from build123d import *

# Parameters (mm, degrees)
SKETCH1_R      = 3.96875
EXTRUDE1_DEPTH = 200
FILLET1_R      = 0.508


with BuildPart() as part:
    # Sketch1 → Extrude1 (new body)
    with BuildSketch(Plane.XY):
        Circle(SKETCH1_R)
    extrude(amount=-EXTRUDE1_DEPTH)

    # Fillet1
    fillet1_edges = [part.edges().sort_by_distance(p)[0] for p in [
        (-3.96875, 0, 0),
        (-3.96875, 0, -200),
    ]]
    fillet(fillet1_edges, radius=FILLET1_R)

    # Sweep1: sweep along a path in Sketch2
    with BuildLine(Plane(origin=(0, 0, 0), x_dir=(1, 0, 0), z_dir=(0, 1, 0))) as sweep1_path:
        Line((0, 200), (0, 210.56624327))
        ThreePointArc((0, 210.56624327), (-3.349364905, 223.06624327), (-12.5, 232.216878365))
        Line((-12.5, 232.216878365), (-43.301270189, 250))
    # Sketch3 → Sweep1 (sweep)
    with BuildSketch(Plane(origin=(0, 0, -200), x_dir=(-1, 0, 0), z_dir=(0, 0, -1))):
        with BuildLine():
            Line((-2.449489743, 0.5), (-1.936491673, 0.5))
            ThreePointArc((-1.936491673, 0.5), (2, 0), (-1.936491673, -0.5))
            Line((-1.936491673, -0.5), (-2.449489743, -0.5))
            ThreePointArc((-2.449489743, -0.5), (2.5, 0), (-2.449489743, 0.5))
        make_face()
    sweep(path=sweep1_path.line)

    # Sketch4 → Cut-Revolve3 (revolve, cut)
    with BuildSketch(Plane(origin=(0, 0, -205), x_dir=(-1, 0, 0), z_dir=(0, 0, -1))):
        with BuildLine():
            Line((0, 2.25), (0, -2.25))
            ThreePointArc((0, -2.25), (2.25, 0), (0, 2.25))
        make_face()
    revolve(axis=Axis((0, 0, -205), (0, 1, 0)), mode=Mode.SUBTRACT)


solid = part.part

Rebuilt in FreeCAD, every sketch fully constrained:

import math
import FreeCAD as App
import Part
import Sketcher
from FreeCAD import Vector
Q = App.Units.Quantity


def edges_at(feature, points):
    """Names of the edges that pass closest to the given points."""
    edges = feature.Shape.Edges
    near = lambda p: min(range(len(edges)), key=lambda i: edges[i].distToShape(Part.Vertex(*p))[0])
    return sorted({f"Edge{near(p) + 1}" for p in points})

doc = App.newDocument("Part")
body = doc.addObject("PartDesign::Body", "Body")

sketch1 = body.newObject("Sketcher::SketchObject", "Sketch")
sketch1.AttachmentSupport = (doc.getObject("XY_Plane"), [""])
sketch1.MapMode = "FlatFace"
sketch1.addGeometry(Part.Circle(Vector(0, 0, 0), Vector(0, 0, 1), 4), False)
sketch1.addConstraint([
    Sketcher.Constraint("Coincident", 0, 3, -1, 1),
    Sketcher.Constraint("Diameter", 0, 7.9375),
])
pad1 = body.newObject("PartDesign::Pad", "Pad")
pad1.Profile = sketch1
pad1.Length = 200
pad1.Reversed = True
doc.recompute()

fillet = body.newObject("PartDesign::Fillet", "Fillet")
fillet.Base = (pad1, edges_at(pad1, [(-3.969, 0, 0), (-3.969, 0, -200)]))
fillet.Radius = 0.508

sketch2 = body.newObject("Sketcher::SketchObject", "Sketch001")
sketch2.AttachmentSupport = (doc.getObject("XY_Plane"), [""])
sketch2.MapMode = "FlatFace"
sketch2.AttachmentOffset = App.Placement(Vector(0, 0, -200), App.Rotation())
sketch2.addGeometry([
    Part.LineSegment(Vector(2.4, 0.5, 0), Vector(1.9, 0.5, 0)),
    Part.ArcOfCircle(Part.Circle(Vector(0, 0, 0), Vector(0, 0, 1), 2), math.radians(14), math.radians(346)),
    Part.LineSegment(Vector(1.9, -0.5, 0), Vector(2.4, -0.5, 0)),
    Part.ArcOfCircle(Part.Circle(Vector(0, 0, 0), Vector(0, 0, 1), 2.5), math.radians(12), math.radians(348)),
], False)
sketch2.addConstraint([
    Sketcher.Constraint("Coincident", 0, 2, 1, 1),
    Sketcher.Constraint("Coincident", 1, 2, 2, 1),
    Sketcher.Constraint("Coincident", 2, 2, 3, 2),
    Sketcher.Constraint("Coincident", 3, 1, 0, 1),
    Sketcher.Constraint("Horizontal", 0),
    Sketcher.Constraint("Horizontal", 2),
    Sketcher.Constraint("Coincident", 1, 3, -1, 1),
    Sketcher.Constraint("Coincident", 3, 3, -1, 1),
    Sketcher.Constraint("Vertical", 0, 2, 1, 2),
    Sketcher.Constraint("Radius", 1, 2.0),
    Sketcher.Constraint("Radius", 3, 2.5),
    Sketcher.Constraint("DistanceY", 1, 2, 0, 2, 1.0),
])

sketch3 = body.newObject("Sketcher::SketchObject", "Sketch002")
sketch3.AttachmentSupport = (doc.getObject("XZ_Plane"), [""])
sketch3.MapMode = "FlatFace"
sketch3.addGeometry([
    Part.LineSegment(Vector(0, -200, 0), Vector(0, -211, 0)),
    Part.ArcOfCircle(Part.Circle(Vector(-25, -211, 0), Vector(0, 0, 1), 25), math.radians(-60), math.radians(0)),
    Part.LineSegment(Vector(-12, -232, 0), Vector(-43, -250, 0)),
], False)
sketch3.addConstraint([
    Sketcher.Constraint("Tangent", 0, 2, 1, 2),
    Sketcher.Constraint("Tangent", 1, 1, 2, 1),
    Sketcher.Constraint("Vertical", 0),
    Sketcher.Constraint("PointOnObject", 0, 1, -2),
    Sketcher.Constraint("Radius", 1, 25.0),
    Sketcher.Constraint("Angle", 2, Q("-150 deg")),
    Sketcher.Constraint("DistanceY", 0, 1, -1, 1, 200.0),
    Sketcher.Constraint("DistanceY", 2, 2, -1, 1, 250.0),
    Sketcher.Constraint("DistanceY", 0, 2, 0, 1, 10.566243),
])
doc.recompute()

additivepipe = body.newObject("PartDesign::AdditivePipe", "AdditivePipe")
additivepipe.Profile = sketch2
additivepipe.Spine = (sketch3, ["Edge1", "Edge2", "Edge3"])

sketch4 = body.newObject("Sketcher::SketchObject", "Sketch003")
sketch4.AttachmentSupport = (doc.getObject("XY_Plane"), [""])
sketch4.MapMode = "FlatFace"
sketch4.AttachmentOffset = App.Placement(Vector(0, 0, -205), App.Rotation())
sketch4.addGeometry([
    Part.LineSegment(Vector(0, 2.2, 0), Vector(0, -2.2, 0)),
    Part.ArcOfCircle(Part.Circle(Vector(0, 0, 0), Vector(0, 0, 1), 2.2), math.radians(90), math.radians(270)),
], False)
sketch4.addConstraint([
    Sketcher.Constraint("Coincident", 0, 1, 1, 1),
    Sketcher.Constraint("Coincident", 1, 2, 0, 2),
    Sketcher.Constraint("Vertical", 0),
    Sketcher.Constraint("Coincident", 1, 3, -1, 1),
    Sketcher.Constraint("PointOnObject", 0, 1, -2),
    Sketcher.Constraint("Radius", 1, 2.25),
])
groove = body.newObject("PartDesign::Groove", "Groove")
groove.Profile = sketch4
groove.ReferenceAxis = (sketch4, ["V_Axis"])
groove.Angle = 360

doc.recompute()
